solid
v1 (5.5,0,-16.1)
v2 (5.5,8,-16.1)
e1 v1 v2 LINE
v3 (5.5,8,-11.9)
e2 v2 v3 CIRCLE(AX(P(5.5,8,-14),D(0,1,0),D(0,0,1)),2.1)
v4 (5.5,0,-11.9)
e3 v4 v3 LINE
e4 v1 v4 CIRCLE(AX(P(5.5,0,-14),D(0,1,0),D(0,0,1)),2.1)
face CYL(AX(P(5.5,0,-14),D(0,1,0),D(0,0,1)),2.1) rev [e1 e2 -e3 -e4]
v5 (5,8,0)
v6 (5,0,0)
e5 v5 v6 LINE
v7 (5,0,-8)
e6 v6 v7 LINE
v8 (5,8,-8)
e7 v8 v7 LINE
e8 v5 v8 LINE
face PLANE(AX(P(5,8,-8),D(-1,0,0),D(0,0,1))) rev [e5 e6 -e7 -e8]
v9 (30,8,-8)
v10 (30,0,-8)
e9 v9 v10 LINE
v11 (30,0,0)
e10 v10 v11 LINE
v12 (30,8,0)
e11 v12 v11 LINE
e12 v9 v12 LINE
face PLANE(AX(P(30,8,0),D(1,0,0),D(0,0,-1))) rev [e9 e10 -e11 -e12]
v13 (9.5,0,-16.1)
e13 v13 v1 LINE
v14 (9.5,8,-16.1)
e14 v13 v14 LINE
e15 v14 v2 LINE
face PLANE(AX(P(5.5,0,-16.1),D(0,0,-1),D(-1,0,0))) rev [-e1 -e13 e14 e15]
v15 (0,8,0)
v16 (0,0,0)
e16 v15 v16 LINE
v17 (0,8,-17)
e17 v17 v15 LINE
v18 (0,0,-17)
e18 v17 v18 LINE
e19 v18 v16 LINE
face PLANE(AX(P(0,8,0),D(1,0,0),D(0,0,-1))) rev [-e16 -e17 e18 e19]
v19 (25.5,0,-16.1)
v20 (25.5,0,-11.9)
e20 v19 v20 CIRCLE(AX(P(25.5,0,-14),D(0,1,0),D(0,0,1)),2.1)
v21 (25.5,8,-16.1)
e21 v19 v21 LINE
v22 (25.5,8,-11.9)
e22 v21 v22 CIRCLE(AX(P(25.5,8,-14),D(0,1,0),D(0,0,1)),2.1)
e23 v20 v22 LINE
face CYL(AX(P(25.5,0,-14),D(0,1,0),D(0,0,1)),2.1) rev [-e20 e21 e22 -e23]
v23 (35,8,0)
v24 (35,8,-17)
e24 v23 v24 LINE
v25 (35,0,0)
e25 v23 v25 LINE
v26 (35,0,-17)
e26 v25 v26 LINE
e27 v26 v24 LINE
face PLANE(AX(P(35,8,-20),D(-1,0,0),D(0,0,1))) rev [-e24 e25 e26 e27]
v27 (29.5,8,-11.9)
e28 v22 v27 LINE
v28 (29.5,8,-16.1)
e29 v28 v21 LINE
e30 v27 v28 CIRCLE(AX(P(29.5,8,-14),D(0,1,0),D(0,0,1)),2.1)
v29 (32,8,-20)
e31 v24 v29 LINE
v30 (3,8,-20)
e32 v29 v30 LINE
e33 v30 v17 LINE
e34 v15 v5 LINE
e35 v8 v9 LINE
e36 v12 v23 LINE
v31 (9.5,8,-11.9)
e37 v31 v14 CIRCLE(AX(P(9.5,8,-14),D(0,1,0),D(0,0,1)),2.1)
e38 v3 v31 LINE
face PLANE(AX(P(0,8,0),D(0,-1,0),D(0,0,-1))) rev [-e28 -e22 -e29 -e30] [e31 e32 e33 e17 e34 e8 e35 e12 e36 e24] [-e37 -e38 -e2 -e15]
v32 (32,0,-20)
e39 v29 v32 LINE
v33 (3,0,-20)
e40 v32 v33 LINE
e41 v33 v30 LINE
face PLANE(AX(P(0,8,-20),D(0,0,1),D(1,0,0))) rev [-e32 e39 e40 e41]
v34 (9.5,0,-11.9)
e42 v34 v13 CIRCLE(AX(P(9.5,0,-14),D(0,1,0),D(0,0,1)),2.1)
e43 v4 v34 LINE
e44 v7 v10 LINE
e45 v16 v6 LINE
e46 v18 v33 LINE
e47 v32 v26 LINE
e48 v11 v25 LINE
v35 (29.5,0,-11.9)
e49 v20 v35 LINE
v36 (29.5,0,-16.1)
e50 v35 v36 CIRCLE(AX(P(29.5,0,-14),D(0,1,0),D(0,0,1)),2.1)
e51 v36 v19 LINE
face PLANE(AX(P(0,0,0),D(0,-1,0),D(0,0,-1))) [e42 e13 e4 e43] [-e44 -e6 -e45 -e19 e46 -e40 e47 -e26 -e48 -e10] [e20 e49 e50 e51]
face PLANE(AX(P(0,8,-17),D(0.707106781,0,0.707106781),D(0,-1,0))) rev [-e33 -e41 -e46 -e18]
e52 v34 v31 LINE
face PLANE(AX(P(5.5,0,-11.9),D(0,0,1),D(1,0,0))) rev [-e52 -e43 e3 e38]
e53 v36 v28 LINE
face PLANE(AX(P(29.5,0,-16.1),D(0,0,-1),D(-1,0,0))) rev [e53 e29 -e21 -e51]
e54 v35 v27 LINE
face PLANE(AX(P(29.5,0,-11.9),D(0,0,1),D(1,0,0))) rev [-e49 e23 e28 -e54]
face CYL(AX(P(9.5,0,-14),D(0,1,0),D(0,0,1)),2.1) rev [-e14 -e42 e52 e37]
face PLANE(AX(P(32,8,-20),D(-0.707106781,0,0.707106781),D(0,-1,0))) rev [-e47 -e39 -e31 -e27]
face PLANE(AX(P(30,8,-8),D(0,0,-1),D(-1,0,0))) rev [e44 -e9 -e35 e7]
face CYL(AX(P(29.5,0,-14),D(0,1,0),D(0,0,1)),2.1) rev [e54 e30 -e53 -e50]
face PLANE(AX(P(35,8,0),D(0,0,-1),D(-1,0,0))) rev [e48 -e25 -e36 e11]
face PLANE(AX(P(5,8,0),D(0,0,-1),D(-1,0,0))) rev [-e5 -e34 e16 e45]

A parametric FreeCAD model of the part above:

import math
import FreeCAD as App
import Part
import Sketcher

V = App.Vector


def edges_at(feature, points):
    """Names of the edges that pass closest to the given points."""
    edges = feature.Shape.Edges
    near = lambda p: min(range(len(edges)), key=lambda i: edges[i].distToShape(Part.Vertex(*p))[0])
    return sorted({f"Edge{near(p) + 1}" for p in points})

doc = App.newDocument("Part")
body = doc.addObject("PartDesign::Body", "Body")

sketch1 = body.newObject("Sketcher::SketchObject", "Sketch")
sketch1.AttachmentSupport = (doc.getObject("XZ_Plane"), [""])
sketch1.MapMode = "FlatFace"
sketch1.addGeometry([
    Part.LineSegment(V(0, -20, 0), V(0, 0, 0)),
    Part.LineSegment(V(0, 0, 0), V(5, 0, 0)),
    Part.LineSegment(V(5, 0, 0), V(5, -8, 0)),
    Part.LineSegment(V(5, -8, 0), V(30, -8, 0)),
    Part.LineSegment(V(30, -8, 0), V(30, 0, 0)),
    Part.LineSegment(V(30, 0, 0), V(35, 0, 0)),
    Part.LineSegment(V(35, 0, 0), V(35, -20, 0)),
    Part.LineSegment(V(35, -20, 0), V(0, -20, 0)),
], False)
sketch1.addConstraint([
    Sketcher.Constraint("Coincident", 0, 2, 1, 1),
    Sketcher.Constraint("Coincident", 1, 2, 2, 1),
    Sketcher.Constraint("Coincident", 2, 2, 3, 1),
    Sketcher.Constraint("Coincident", 3, 2, 4, 1),
    Sketcher.Constraint("Coincident", 4, 2, 5, 1),
    Sketcher.Constraint("Coincident", 5, 2, 6, 1),
    Sketcher.Constraint("Coincident", 6, 2, 7, 1),
    Sketcher.Constraint("Coincident", 7, 2, 0, 1),
    Sketcher.Constraint("Vertical", 0),
    Sketcher.Constraint("Horizontal", 1),
    Sketcher.Constraint("Vertical", 2),
    Sketcher.Constraint("Horizontal", 3),
    Sketcher.Constraint("Vertical", 4),
    Sketcher.Constraint("Horizontal", 5),
    Sketcher.Constraint("Vertical", 6),
    Sketcher.Constraint("Horizontal", 7),
    Sketcher.Constraint("Coincident", 0, 2, -1, 1),
    Sketcher.Constraint("PointOnObject", 4, 2, -1),
    Sketcher.Constraint("Equal", 1, 5),
    Sketcher.Constraint("DistanceX", 1, 1, 1, 2, 5.0),
    Sketcher.Constraint("DistanceX", 3, 1, 3, 2, 25.0),
    Sketcher.Constraint("DistanceY", 0, 1, 0, 2, 20.0),
    Sketcher.Constraint("DistanceY", 2, 2, 2, 1, 8.0),
])
pad1 = body.newObject("PartDesign::Pad", "Pad")
pad1.Profile = sketch1
pad1.Length = 8
pad1.Reversed = True

sketch2 = body.newObject("Sketcher::SketchObject", "Sketch001")
sketch2.AttachmentSupport = (doc.getObject("XZ_Plane"), [""])
sketch2.MapMode = "FlatFace"
sketch2.AttachmentOffset = App.Placement(V(0, 0, -8), App.Rotation())
sketch2.addGeometry([
    Part.LineSegment(V(25.5, -11.9, 0), V(29.5, -11.9, 0)),
    Part.ArcOfCircle(Part.Circle(V(29.5, -14, 0), V(0, 0, 1), 2.1), math.radians(-90), math.radians(90)),
    Part.LineSegment(V(29.5, -16.1, 0), V(25.5, -16.1, 0)),
    Part.ArcOfCircle(Part.Circle(V(25.5, -14, 0), V(0, 0, 1), 2.1), math.radians(90), math.radians(270)),
    Part.LineSegment(V(9.5, -16.1, 0), V(5.5, -16.1, 0)),
    Part.ArcOfCircle(Part.Circle(V(5.5, -14, 0), V(0, 0, 1), 2.1), math.radians(90), math.radians(270)),
    Part.LineSegment(V(5.5, -11.9, 0), V(9.5, -11.9, 0)),
    Part.ArcOfCircle(Part.Circle(V(9.5, -14, 0), V(0, 0, 1), 2.1), math.radians(-90), math.radians(90)),
], False)
sketch2.addConstraint([
    Sketcher.Constraint("Tangent", 0, 2, 1, 2),
    Sketcher.Constraint("Tangent", 1, 1, 2, 1),
    Sketcher.Constraint("Tangent", 2, 2, 3, 2),
    Sketcher.Constraint("Tangent", 3, 1, 0, 1),
    Sketcher.Constraint("Tangent", 4, 2, 5, 2),
    Sketcher.Constraint("Tangent", 5, 1, 6, 1),
    Sketcher.Constraint("Tangent", 6, 2, 7, 2),
    Sketcher.Constraint("Tangent", 7, 1, 4, 1),
    Sketcher.Constraint("Horizontal", 0),
    Sketcher.Constraint("Horizontal", 2),
    Sketcher.Constraint("Horizontal", 4),
    Sketcher.Constraint("Horizontal", 6),
    Sketcher.Constraint("Equal", 3, 5),
    Sketcher.Constraint("Horizontal", 3, 3, 5, 3),
    Sketcher.Constraint("Equal", 2, 4),
    Sketcher.Constraint("Radius", 1, 2.1),
    Sketcher.Constraint("DistanceX", 0, 1, 0, 2, 4.0),
    Sketcher.Constraint("DistanceY", 1, 3, -1, 1, 14.0),
    Sketcher.Constraint("DistanceX", 5, 3, 3, 3, 20.0),
    Sketcher.Constraint("DistanceX", -1, 1, 1, 3, 29.5),
])
pocket1 = body.newObject("PartDesign::Pocket", "Pocket")
pocket1.Profile = sketch2
pocket1.Length = 8
pocket1.Reversed = True
doc.recompute()

chamfer = body.newObject("PartDesign::Chamfer", "Chamfer")
chamfer.Base = (pocket1, edges_at(pocket1, [(0, 4, -20), (35, 4, -20)]))
chamfer.Size = 3

doc.recompute()
